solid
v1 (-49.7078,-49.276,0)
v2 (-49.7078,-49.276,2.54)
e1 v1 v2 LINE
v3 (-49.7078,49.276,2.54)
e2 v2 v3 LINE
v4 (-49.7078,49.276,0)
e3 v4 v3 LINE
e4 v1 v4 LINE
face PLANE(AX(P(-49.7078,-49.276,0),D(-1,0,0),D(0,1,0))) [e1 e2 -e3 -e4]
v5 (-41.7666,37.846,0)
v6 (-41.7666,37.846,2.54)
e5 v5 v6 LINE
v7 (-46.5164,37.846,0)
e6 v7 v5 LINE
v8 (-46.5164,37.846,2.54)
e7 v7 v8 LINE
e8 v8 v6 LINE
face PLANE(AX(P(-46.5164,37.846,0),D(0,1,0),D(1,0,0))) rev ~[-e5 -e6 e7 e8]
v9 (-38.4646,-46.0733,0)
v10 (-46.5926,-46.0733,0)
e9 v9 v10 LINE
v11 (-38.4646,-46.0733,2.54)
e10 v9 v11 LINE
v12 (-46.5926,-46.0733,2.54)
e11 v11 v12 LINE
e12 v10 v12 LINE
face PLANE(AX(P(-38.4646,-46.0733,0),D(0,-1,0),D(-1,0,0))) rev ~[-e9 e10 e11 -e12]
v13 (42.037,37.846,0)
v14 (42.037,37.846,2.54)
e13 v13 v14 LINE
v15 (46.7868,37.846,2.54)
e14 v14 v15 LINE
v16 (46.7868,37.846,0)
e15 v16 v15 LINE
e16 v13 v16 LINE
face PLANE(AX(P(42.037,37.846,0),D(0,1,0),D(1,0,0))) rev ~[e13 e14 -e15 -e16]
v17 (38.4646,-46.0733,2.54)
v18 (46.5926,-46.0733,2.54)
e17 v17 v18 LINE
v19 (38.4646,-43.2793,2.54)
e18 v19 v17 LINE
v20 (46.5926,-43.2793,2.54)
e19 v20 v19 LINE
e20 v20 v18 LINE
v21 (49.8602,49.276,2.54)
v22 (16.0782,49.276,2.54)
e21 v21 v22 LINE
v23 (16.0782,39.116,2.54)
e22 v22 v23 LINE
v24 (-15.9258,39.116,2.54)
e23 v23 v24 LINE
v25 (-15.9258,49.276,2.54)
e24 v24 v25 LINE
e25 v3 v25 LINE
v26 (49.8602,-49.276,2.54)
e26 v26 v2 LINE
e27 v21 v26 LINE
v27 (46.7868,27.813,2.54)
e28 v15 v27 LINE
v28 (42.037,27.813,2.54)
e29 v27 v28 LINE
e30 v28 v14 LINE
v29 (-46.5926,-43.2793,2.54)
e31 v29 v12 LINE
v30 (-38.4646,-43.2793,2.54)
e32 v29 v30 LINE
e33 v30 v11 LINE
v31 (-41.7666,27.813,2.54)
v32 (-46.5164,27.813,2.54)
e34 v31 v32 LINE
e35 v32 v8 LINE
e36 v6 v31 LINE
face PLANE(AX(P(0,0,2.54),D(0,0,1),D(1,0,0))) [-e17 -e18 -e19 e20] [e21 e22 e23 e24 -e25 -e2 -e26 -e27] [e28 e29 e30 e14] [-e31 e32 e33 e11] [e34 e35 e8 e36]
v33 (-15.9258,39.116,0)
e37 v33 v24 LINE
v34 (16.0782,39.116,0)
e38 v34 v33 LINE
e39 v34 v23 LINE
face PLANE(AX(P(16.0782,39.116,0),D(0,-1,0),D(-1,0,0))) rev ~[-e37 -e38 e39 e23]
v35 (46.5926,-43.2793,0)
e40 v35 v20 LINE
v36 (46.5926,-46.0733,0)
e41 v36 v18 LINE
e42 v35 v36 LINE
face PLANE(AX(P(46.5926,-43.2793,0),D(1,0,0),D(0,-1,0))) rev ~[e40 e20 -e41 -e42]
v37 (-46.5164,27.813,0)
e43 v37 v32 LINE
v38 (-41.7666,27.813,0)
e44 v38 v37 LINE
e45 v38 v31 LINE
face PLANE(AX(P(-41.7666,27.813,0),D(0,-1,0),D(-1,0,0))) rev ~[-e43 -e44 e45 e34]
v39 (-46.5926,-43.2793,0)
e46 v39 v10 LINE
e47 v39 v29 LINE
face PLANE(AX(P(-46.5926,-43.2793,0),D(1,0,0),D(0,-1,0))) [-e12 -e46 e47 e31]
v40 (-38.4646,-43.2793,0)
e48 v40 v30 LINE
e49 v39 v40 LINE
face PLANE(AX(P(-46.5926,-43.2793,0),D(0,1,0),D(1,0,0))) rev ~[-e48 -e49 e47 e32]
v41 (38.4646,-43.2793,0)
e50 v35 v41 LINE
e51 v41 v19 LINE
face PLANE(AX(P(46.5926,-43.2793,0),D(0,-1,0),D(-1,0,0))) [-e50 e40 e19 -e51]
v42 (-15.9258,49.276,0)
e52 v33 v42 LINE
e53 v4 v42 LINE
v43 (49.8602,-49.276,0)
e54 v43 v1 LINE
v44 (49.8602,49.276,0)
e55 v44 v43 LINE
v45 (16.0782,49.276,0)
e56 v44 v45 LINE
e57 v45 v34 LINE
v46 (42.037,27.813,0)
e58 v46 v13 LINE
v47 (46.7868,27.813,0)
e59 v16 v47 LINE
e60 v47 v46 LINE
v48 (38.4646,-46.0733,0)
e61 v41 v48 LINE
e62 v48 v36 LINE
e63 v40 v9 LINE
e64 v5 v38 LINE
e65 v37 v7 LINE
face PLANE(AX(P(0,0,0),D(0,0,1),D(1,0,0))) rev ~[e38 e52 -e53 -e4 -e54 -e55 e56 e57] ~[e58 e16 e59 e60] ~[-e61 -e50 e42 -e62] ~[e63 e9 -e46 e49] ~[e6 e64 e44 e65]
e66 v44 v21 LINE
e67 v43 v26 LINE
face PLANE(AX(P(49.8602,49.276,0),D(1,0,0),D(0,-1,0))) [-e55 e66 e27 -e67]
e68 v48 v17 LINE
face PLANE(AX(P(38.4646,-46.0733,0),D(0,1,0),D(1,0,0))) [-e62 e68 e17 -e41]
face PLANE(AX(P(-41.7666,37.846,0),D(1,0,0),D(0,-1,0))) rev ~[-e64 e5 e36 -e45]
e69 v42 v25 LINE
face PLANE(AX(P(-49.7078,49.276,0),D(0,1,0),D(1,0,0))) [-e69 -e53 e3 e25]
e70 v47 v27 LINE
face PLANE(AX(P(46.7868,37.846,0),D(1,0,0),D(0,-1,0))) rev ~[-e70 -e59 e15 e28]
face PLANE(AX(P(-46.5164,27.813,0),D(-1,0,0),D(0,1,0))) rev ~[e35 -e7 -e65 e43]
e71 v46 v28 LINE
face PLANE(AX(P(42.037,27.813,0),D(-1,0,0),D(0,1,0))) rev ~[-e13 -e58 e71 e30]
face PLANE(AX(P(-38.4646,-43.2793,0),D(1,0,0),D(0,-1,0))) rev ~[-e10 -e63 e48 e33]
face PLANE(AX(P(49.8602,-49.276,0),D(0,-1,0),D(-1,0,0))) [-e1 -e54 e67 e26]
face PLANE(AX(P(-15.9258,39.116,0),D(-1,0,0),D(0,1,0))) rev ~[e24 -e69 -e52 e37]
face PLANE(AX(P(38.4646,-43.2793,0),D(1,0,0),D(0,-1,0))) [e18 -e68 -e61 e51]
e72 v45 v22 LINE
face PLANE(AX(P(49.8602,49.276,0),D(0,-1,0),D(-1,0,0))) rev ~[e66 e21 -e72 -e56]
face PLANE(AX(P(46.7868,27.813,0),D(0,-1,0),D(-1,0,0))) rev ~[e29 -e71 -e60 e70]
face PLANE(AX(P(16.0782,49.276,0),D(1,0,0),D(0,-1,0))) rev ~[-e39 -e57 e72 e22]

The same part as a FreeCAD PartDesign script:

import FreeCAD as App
import Part
import Sketcher

V = App.Vector
Q = App.Units.Quantity


def add_polygon(sketch, points):
    """Adds a closed chain of lines whose ends are joined by coincident constraints."""
    first, n = sketch.GeometryCount, len(points)
    for a, b in zip(points, points[1:] + points[:1]):
        sketch.addGeometry(Part.LineSegment(App.Vector(*a, 0), App.Vector(*b, 0)), False)
    for i in range(n):
        sketch.addConstraint(Sketcher.Constraint("Coincident", first + i, 2, first + (i + 1) % n, 1))

doc = App.newDocument("Part")
body = doc.addObject("PartDesign::Body", "Body")

sketch1 = doc.addObject("Sketcher::SketchObject", "Sketch")
body.addObject(sketch1)
sketch1.AttachmentSupport = (doc.XY_Plane, [""])
sketch1.MapMode = "FlatFace"
add_polygon(sketch1, [(49.8602, -49.276), (49.8602, 49.276), (16.0782, 49.276), (16.0782, 39.116), (-15.9258, 39.116), (-15.9258, 49.276), (-49.7078, 49.276), (-49.7078, -49.276)])
add_polygon(sketch1, [(-46.5926, -46.0733), (-46.5926, -43.2793), (-38.4646, -43.2793), (-38.4646, -46.0733)])
add_polygon(sketch1, [(38.4646, -43.2793), (46.5926, -43.2793), (46.5926, -46.0733), (38.4646, -46.0733)])
add_polygon(sketch1, [(-46.5164, 27.813), (-46.5164, 37.846), (-41.7666, 37.846), (-41.7666, 27.813)])
add_polygon(sketch1, [(42.037, 27.813), (42.037, 37.846), (46.7868, 37.846), (46.7868, 27.813)])
sketch1.addConstraint([
    Sketcher.Constraint("Vertical", 0),
    Sketcher.Constraint("Horizontal", 1),
    Sketcher.Constraint("Vertical", 2),
    Sketcher.Constraint("Horizontal", 3),
    Sketcher.Constraint("Vertical", 4),
    Sketcher.Constraint("Horizontal", 5),
    Sketcher.Constraint("Vertical", 6),
    Sketcher.Constraint("Horizontal", 7),
    Sketcher.Constraint("Vertical", 8),
    Sketcher.Constraint("Horizontal", 9),
    Sketcher.Constraint("Vertical", 10),
    Sketcher.Constraint("Horizontal", 11),
    Sketcher.Constraint("Horizontal", 12),
    Sketcher.Constraint("Vertical", 13),
    Sketcher.Constraint("Horizontal", 14),
    Sketcher.Constraint("Vertical", 15),
    Sketcher.Constraint("Vertical", 16),
    Sketcher.Constraint("Horizontal", 17),
    Sketcher.Constraint("Vertical", 18),
    Sketcher.Constraint("Horizontal", 19),
    Sketcher.Constraint("Vertical", 20),
    Sketcher.Constraint("Horizontal", 21),
    Sketcher.Constraint("Vertical", 22),
    Sketcher.Constraint("Horizontal", 23),
    Sketcher.Constraint("Symmetric", 8, 2, 12, 2, -2),
    Sketcher.Constraint("Symmetric", 10, 2, 14, 2, -2),
    Sketcher.Constraint("Horizontal", 1, 2, 4, 2),
    Sketcher.Constraint("Horizontal", 17, 2, 20, 2),
    Sketcher.Constraint("Horizontal", 19, 2, 22, 2),
    Sketcher.Constraint("Equal", 1, 5),
    Sketcher.Constraint("Equal", 19, 21),
    Sketcher.Constraint("DistanceY", 2, 2, 2, 1, Q("0.4 in")),
    Sketcher.Constraint("DistanceX", 1, 2, 1, 1, Q("1.33 in")),
    Sketcher.Constraint("DistanceX", 3, 2, 3, 1, Q("1.26 in")),
    Sketcher.Constraint("DistanceX", 9, 1, 9, 2, Q("0.32 in")),
    Sketcher.Constraint("DistanceY", 0, 1, 0, 2, Q("3.88 in")),
    Sketcher.Constraint("DistanceY", 8, 1, 8, 2, Q("0.11 in")),
    Sketcher.Constraint("DistanceX", 17, 1, 17, 2, Q("0.187 in")),
    Sketcher.Constraint("DistanceY", 16, 1, 16, 2, Q("0.395 in")),
    Sketcher.Constraint("DistanceY", -1, 1, 0, 2, Q("1.94 in")),
    Sketcher.Constraint("DistanceY", -1, 1, 16, 2, Q("1.49 in")),
    Sketcher.Constraint("DistanceX", 5, 2, 16, 2, Q("3.1914 mm")),
    Sketcher.Constraint("DistanceX", -1, 1, 0, 2, Q("1.963 in")),
    Sketcher.Constraint("DistanceX", -1, 1, 20, 2, Q("1.655 in")),
    Sketcher.Constraint("DistanceY", 8, 2, -1, 1, Q("1.7039 in")),
    Sketcher.Constraint("DistanceX", 9, 2, 12, 2, Q("3.3487 in")),
])
pad1 = doc.addObject("PartDesign::Pad", "Pad")
body.addObject(pad1)
pad1.Profile = sketch1
pad1.Length = Q("0.1 in")

doc.recompute()
